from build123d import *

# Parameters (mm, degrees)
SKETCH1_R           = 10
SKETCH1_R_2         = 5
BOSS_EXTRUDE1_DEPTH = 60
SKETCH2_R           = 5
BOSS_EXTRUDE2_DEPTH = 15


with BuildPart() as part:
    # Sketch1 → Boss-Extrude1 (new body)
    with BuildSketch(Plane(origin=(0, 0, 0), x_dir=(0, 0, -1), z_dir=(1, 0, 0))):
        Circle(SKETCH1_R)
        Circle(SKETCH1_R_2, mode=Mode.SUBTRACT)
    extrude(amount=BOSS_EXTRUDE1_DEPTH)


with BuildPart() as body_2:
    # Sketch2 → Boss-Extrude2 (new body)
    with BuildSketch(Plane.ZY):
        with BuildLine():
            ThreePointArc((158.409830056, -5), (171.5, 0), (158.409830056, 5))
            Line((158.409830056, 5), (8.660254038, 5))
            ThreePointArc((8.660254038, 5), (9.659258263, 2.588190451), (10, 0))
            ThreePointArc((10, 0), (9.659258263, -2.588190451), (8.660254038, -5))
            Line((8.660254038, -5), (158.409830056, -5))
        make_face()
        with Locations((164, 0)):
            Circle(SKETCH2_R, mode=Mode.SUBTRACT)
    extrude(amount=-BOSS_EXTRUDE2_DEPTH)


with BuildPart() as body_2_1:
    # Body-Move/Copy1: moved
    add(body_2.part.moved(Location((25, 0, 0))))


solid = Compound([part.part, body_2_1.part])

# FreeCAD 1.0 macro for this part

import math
import FreeCAD as App
import Part
import Sketcher

V = App.Vector

doc = App.newDocument("Part")
body = doc.addObject("PartDesign::Body", "Body")

sketch1 = doc.addObject("Sketcher::SketchObject", "Sketch")
body.addObject(sketch1)
sketch1.AttachmentSupport = (doc.YZ_Plane, [""])
sketch1.MapMode = "FlatFace"
sketch1.addGeometry([
    Part.Circle(V(0, 0, 0), V(0, 0, 1), 10),
    Part.Circle(V(0, 0, 0), V(0, 0, 1), 5),
], False)
sketch1.addConstraint([
    Sketcher.Constraint("Coincident", 0, 3, -1, 1),
    Sketcher.Constraint("Coincident", 1, 3, -1, 1),
    Sketcher.Constraint("Diameter", 0, 20.0),
    Sketcher.Constraint("Diameter", 1, 10.0),
])
pad1 = doc.addObject("PartDesign::Pad", "Pad")
body.addObject(pad1)
pad1.Profile = sketch1
pad1.Length = 60
body2 = doc.addObject("PartDesign::Body", "Body001")

sketch2 = doc.addObject("Sketcher::SketchObject", "Sketch001")
body2.addObject(sketch2)
sketch2.AttachmentSupport = (doc.getObject("YZ_Plane001"), [""])
sketch2.MapMode = "FlatFace"
sketch2.addGeometry([
    Part.ArcOfCircle(Part.Circle(V(0, 164, 0), V(0, 0, 1), 8), math.radians(-48), math.radians(228)),
    Part.LineSegment(V(5, 158, 0), V(5, 9, 0)),
    Part.ArcOfCircle(Part.Circle(V(0, 0, 0), V(0, 0, 1), 10), math.radians(60), math.radians(90)),
    Part.ArcOfCircle(Part.Circle(V(0, 0, 0), V(0, 0, 1), 10), math.radians(90), math.radians(120)),
    Part.LineSegment(V(-5, 9, 0), V(-5, 158, 0)),
    Part.Circle(V(0, 164, 0), V(0, 0, 1), 5),
], False)
sketch2.addConstraint([
    Sketcher.Constraint("Coincident", 0, 1, 1, 1),
    Sketcher.Constraint("Coincident", 1, 2, 2, 1),
    Sketcher.Constraint("Tangent", 2, 2, 3, 1),
    Sketcher.Constraint("Coincident", 3, 2, 4, 1),
    Sketcher.Constraint("Coincident", 4, 2, 0, 2),
    Sketcher.Constraint("Vertical", 1),
    Sketcher.Constraint("Vertical", 4),
    Sketcher.Constraint("Coincident", 2, 3, -1, 1),
    Sketcher.Constraint("Coincident", 5, 3, 0, 3),
    Sketcher.Constraint("Equal", 2, 3),
    Sketcher.Constraint("Symmetric", 0, 1, 4, 2, -2),
    Sketcher.Constraint("PointOnObject", 2, 2, -2),
    Sketcher.Constraint("Diameter", 5, 10.0),
    Sketcher.Constraint("Radius", 2, 10.0),
    Sketcher.Constraint("Radius", 0, 7.5),
    Sketcher.Constraint("DistanceY", -1, 1, 0, 3, 164.0),
    Sketcher.Constraint("DistanceX", -1, 1, 0, 1, 5.0),
])
pad2 = doc.addObject("PartDesign::Pad", "Pad001")
body2.addObject(pad2)
pad2.Profile = sketch2
pad2.Length = 15
body3 = doc.addObject("PartDesign::Body", "Body002")
doc.recompute()

body2.Placement = App.Placement(V(25, 0, 0), App.Rotation(V(0, 0, 1), 0))
boolean = doc.addObject("PartDesign::Boolean", "Boolean")
body3.addObject(boolean)
boolean.Type = "Fuse"
boolean.addObjects([body2])

doc.recompute()
